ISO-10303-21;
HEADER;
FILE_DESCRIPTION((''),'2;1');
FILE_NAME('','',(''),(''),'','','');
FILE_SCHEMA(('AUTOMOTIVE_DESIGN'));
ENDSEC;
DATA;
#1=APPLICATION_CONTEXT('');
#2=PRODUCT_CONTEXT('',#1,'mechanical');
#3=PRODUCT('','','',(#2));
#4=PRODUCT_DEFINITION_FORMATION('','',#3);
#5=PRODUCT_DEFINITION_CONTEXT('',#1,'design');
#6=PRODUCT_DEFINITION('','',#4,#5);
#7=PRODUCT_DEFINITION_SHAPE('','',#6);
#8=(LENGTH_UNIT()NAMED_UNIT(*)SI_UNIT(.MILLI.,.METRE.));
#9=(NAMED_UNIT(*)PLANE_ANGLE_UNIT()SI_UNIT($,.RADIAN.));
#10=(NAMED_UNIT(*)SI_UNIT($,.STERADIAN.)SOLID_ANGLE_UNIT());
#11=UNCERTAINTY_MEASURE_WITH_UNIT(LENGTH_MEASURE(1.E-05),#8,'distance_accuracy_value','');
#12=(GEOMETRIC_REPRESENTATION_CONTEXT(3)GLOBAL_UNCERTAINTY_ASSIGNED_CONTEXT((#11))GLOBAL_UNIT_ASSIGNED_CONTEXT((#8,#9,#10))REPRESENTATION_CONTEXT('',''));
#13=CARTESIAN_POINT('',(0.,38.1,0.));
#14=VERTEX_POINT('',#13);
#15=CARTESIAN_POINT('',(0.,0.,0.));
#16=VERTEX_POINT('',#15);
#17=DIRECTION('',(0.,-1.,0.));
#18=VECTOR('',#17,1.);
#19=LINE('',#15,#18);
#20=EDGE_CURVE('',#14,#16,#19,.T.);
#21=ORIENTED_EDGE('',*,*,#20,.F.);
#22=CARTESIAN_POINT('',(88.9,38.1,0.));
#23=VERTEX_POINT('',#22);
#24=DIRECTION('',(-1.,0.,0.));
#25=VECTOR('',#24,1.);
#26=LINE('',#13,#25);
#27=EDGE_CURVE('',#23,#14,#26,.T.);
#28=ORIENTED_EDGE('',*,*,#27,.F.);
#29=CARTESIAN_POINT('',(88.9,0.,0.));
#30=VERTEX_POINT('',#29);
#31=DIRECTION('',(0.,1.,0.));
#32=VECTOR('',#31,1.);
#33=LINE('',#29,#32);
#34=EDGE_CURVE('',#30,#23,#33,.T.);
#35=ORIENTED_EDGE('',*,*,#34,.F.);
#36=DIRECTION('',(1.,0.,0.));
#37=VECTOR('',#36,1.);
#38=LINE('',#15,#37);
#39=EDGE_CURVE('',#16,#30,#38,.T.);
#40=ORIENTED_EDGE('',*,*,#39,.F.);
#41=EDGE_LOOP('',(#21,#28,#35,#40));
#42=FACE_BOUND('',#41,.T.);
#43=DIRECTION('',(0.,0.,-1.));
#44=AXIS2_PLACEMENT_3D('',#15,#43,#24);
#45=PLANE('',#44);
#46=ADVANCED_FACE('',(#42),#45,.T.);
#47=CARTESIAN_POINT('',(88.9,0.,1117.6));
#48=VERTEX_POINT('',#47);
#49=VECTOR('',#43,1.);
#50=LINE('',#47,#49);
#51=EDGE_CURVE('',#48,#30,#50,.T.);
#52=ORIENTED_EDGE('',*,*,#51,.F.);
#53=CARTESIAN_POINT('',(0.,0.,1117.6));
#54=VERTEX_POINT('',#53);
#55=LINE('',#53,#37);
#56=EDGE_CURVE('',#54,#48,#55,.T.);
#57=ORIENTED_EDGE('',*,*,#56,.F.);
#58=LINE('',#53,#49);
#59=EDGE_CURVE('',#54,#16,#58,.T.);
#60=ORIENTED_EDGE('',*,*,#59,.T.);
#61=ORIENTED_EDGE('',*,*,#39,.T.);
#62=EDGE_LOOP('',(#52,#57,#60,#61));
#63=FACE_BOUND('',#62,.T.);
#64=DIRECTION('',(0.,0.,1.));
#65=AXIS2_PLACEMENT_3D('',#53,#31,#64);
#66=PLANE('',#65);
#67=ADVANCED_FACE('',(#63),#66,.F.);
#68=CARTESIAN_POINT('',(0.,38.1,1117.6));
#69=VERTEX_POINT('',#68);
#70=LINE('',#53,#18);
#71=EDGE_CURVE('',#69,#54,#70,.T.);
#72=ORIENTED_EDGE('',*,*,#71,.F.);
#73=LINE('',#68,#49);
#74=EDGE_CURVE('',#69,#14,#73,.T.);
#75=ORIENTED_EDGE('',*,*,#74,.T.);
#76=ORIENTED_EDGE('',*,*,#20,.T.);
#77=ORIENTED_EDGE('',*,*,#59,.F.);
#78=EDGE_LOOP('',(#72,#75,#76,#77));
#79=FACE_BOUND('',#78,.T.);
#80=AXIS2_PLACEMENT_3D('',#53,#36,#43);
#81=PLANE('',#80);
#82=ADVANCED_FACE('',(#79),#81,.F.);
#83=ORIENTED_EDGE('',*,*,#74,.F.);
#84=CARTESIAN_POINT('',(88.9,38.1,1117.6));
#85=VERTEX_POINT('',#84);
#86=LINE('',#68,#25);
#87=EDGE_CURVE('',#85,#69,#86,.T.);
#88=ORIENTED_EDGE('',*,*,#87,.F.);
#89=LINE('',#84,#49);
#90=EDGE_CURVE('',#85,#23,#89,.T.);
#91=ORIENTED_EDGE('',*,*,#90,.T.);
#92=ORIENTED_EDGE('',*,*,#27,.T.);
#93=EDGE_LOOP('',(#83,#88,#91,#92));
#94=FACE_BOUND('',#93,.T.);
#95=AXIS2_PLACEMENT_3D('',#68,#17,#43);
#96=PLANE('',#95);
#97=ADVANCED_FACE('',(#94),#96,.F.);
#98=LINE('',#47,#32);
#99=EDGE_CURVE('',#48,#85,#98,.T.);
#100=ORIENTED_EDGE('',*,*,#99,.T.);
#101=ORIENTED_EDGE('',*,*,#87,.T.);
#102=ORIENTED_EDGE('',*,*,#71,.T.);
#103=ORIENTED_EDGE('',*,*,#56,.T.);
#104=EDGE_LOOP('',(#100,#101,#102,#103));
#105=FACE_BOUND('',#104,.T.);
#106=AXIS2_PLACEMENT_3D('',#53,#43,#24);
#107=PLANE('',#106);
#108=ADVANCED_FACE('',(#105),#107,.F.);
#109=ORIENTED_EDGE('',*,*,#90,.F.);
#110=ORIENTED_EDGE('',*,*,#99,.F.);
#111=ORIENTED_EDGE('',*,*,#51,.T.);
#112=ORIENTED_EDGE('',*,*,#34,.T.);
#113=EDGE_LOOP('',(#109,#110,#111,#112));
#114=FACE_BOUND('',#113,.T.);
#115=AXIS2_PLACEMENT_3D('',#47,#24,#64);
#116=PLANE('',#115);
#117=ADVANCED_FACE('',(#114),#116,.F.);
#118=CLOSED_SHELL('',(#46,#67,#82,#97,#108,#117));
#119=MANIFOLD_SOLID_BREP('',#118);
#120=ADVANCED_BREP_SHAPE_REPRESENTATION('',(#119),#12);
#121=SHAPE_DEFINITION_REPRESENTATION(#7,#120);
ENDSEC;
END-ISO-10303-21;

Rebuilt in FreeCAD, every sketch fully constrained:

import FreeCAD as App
import Part
import Sketcher
from FreeCAD import Vector
Q = App.Units.Quantity

doc = App.newDocument("Part")
body = doc.addObject("PartDesign::Body", "Body")

sketch1 = body.newObject("Sketcher::SketchObject", "Sketch")
sketch1.AttachmentSupport = (doc.getObject("XY_Plane"), [""])
sketch1.MapMode = "FlatFace"
sketch1.addGeometry(Part.LineSegment(Vector(0, 38, 0), Vector(0, 0, 0)), False)
sketch1.addGeometry(Part.LineSegment(Vector(0, 0, 0), Vector(89, 0, 0)), False)
sketch1.addGeometry(Part.LineSegment(Vector(89, 0, 0), Vector(89, 38, 0)), False)
sketch1.addGeometry(Part.LineSegment(Vector(89, 38, 0), Vector(0, 38, 0)), False)
sketch1.addConstraint(Sketcher.Constraint("Coincident", 0, 2, 1, 1))
sketch1.addConstraint(Sketcher.Constraint("Coincident", 1, 2, 2, 1))
sketch1.addConstraint(Sketcher.Constraint("Coincident", 2, 2, 3, 1))
sketch1.addConstraint(Sketcher.Constraint("Coincident", 3, 2, 0, 1))
sketch1.addConstraint(Sketcher.Constraint("Vertical", 0))
sketch1.addConstraint(Sketcher.Constraint("Horizontal", 1))
sketch1.addConstraint(Sketcher.Constraint("Vertical", 2))
sketch1.addConstraint(Sketcher.Constraint("Horizontal", 3))
sketch1.addConstraint(Sketcher.Constraint("Coincident", 0, 2, -1, 1))
sketch1.addConstraint(Sketcher.Constraint("DistanceX", 1, 1, 1, 2, Q("3.5 in")))
sketch1.addConstraint(Sketcher.Constraint("DistanceY", 0, 2, 0, 1, Q("1.5 in")))
pad1 = body.newObject("PartDesign::Pad", "Pad")
pad1.Profile = sketch1
pad1.Length = Q("44 in")

doc.recompute()
